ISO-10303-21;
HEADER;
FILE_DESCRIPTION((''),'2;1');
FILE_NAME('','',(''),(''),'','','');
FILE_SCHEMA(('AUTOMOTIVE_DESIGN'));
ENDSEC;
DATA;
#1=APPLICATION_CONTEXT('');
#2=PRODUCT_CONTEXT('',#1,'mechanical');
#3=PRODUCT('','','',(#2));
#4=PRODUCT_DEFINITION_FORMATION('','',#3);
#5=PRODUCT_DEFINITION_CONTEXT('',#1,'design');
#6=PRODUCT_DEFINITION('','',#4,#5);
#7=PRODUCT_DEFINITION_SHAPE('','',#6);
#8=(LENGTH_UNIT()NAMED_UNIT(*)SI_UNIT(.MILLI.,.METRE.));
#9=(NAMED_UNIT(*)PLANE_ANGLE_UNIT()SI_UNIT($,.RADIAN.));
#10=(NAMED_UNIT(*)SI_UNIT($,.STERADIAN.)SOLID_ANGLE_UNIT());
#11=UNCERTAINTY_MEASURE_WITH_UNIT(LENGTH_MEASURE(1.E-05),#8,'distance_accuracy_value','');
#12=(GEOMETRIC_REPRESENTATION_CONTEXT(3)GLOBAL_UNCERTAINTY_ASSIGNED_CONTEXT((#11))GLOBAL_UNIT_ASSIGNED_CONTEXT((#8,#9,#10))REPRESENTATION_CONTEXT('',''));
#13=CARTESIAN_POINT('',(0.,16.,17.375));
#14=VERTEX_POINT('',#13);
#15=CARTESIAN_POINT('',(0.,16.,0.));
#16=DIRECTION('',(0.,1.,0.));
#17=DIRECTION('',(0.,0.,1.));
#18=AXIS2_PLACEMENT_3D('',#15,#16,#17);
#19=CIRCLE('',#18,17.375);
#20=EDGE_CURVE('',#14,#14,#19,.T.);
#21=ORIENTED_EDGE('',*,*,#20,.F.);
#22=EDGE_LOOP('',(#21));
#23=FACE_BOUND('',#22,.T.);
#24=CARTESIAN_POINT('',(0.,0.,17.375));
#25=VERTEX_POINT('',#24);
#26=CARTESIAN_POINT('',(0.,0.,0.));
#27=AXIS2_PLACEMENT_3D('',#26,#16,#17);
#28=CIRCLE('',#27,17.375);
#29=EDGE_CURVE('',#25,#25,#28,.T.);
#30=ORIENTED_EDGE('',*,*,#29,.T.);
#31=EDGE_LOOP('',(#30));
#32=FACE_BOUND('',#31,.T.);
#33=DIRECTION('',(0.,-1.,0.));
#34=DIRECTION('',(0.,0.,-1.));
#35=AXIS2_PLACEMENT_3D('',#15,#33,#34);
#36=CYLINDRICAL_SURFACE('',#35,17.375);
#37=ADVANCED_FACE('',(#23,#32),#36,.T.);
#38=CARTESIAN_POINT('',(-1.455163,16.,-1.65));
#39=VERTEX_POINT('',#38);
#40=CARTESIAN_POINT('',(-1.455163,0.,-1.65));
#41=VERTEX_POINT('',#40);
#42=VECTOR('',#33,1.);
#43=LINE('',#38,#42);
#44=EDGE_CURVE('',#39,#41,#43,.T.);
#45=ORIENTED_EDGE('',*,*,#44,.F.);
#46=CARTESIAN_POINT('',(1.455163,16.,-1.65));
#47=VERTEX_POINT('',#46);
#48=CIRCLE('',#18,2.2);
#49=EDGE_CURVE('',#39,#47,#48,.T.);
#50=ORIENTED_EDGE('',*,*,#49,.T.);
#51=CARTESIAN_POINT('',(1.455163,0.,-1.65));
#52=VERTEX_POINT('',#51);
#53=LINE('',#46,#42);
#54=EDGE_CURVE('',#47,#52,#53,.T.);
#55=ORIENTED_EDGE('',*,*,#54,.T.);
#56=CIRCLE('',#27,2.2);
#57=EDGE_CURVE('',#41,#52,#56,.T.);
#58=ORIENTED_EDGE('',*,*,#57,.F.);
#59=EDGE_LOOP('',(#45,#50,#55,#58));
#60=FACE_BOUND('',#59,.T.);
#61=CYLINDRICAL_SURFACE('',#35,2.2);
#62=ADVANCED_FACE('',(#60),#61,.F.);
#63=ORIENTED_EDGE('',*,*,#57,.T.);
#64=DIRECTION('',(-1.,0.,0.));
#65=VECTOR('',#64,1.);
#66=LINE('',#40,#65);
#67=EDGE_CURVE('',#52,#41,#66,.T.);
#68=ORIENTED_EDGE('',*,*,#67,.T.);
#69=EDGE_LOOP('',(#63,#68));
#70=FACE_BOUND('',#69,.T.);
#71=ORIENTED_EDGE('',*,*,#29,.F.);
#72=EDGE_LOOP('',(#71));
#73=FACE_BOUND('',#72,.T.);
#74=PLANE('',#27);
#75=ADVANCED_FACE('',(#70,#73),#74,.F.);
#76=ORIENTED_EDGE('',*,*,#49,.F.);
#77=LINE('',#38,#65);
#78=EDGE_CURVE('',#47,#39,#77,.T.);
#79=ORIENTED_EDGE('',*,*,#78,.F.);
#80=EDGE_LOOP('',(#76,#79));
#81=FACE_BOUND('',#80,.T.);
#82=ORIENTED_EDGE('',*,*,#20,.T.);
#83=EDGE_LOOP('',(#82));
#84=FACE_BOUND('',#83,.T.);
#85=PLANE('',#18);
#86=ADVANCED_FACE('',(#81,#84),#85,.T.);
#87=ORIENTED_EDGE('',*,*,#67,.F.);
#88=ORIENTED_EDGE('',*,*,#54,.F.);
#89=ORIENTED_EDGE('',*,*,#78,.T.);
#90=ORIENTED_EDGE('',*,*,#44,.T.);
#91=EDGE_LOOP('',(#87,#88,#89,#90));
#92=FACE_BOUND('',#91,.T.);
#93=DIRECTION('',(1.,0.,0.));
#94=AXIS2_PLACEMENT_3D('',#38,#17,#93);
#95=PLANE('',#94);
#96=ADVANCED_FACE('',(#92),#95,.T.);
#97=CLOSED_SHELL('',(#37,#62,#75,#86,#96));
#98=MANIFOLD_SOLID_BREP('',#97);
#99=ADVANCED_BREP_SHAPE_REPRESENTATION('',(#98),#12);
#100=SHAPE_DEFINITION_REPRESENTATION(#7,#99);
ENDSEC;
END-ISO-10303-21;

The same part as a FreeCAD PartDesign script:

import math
import FreeCAD as App
import Part
import Sketcher

V = App.Vector

doc = App.newDocument("Part")
body = doc.addObject("PartDesign::Body", "Body")

# Sketch on XZ plane
sketch1 = body.newObject("Sketcher::SketchObject", "Sketch")
sketch1.AttachmentSupport = (doc.getObject("XZ_Plane"), [""])
sketch1.MapMode = "FlatFace"
sketch1.addGeometry(Part.Circle(V(0, 0, 0), V(0, 0, 1), 17.4), False)
sketch1.addGeometry(Part.ArcOfCircle(Part.Circle(V(0, 0, 0), V(0, 0, 1), 2.2), math.radians(-49), math.radians(229)), False)
sketch1.addGeometry(Part.LineSegment(V(-1.5, -1.6, 0), V(1.5, -1.6, 0)), False)
sketch1.addConstraint(Sketcher.Constraint("Coincident", 1, 1, 2, 2))
sketch1.addConstraint(Sketcher.Constraint("Coincident", 2, 1, 1, 2))
sketch1.addConstraint(Sketcher.Constraint("Horizontal", 2))
sketch1.addConstraint(Sketcher.Constraint("Coincident", 0, 3, -1, 1))
sketch1.addConstraint(Sketcher.Constraint("Coincident", 1, 3, -1, 1))
sketch1.addConstraint(Sketcher.Constraint("Radius", 1, 2.2))
sketch1.addConstraint(Sketcher.Constraint("Diameter", 0, 34.75))
sketch1.addConstraint(Sketcher.Constraint("DistanceY", 1, 1, -1, 1, 1.65))
pad1 = body.newObject("PartDesign::Pad", "Pad")
pad1.Profile = sketch1
pad1.Length = 16
pad1.Reversed = True

doc.recompute()
